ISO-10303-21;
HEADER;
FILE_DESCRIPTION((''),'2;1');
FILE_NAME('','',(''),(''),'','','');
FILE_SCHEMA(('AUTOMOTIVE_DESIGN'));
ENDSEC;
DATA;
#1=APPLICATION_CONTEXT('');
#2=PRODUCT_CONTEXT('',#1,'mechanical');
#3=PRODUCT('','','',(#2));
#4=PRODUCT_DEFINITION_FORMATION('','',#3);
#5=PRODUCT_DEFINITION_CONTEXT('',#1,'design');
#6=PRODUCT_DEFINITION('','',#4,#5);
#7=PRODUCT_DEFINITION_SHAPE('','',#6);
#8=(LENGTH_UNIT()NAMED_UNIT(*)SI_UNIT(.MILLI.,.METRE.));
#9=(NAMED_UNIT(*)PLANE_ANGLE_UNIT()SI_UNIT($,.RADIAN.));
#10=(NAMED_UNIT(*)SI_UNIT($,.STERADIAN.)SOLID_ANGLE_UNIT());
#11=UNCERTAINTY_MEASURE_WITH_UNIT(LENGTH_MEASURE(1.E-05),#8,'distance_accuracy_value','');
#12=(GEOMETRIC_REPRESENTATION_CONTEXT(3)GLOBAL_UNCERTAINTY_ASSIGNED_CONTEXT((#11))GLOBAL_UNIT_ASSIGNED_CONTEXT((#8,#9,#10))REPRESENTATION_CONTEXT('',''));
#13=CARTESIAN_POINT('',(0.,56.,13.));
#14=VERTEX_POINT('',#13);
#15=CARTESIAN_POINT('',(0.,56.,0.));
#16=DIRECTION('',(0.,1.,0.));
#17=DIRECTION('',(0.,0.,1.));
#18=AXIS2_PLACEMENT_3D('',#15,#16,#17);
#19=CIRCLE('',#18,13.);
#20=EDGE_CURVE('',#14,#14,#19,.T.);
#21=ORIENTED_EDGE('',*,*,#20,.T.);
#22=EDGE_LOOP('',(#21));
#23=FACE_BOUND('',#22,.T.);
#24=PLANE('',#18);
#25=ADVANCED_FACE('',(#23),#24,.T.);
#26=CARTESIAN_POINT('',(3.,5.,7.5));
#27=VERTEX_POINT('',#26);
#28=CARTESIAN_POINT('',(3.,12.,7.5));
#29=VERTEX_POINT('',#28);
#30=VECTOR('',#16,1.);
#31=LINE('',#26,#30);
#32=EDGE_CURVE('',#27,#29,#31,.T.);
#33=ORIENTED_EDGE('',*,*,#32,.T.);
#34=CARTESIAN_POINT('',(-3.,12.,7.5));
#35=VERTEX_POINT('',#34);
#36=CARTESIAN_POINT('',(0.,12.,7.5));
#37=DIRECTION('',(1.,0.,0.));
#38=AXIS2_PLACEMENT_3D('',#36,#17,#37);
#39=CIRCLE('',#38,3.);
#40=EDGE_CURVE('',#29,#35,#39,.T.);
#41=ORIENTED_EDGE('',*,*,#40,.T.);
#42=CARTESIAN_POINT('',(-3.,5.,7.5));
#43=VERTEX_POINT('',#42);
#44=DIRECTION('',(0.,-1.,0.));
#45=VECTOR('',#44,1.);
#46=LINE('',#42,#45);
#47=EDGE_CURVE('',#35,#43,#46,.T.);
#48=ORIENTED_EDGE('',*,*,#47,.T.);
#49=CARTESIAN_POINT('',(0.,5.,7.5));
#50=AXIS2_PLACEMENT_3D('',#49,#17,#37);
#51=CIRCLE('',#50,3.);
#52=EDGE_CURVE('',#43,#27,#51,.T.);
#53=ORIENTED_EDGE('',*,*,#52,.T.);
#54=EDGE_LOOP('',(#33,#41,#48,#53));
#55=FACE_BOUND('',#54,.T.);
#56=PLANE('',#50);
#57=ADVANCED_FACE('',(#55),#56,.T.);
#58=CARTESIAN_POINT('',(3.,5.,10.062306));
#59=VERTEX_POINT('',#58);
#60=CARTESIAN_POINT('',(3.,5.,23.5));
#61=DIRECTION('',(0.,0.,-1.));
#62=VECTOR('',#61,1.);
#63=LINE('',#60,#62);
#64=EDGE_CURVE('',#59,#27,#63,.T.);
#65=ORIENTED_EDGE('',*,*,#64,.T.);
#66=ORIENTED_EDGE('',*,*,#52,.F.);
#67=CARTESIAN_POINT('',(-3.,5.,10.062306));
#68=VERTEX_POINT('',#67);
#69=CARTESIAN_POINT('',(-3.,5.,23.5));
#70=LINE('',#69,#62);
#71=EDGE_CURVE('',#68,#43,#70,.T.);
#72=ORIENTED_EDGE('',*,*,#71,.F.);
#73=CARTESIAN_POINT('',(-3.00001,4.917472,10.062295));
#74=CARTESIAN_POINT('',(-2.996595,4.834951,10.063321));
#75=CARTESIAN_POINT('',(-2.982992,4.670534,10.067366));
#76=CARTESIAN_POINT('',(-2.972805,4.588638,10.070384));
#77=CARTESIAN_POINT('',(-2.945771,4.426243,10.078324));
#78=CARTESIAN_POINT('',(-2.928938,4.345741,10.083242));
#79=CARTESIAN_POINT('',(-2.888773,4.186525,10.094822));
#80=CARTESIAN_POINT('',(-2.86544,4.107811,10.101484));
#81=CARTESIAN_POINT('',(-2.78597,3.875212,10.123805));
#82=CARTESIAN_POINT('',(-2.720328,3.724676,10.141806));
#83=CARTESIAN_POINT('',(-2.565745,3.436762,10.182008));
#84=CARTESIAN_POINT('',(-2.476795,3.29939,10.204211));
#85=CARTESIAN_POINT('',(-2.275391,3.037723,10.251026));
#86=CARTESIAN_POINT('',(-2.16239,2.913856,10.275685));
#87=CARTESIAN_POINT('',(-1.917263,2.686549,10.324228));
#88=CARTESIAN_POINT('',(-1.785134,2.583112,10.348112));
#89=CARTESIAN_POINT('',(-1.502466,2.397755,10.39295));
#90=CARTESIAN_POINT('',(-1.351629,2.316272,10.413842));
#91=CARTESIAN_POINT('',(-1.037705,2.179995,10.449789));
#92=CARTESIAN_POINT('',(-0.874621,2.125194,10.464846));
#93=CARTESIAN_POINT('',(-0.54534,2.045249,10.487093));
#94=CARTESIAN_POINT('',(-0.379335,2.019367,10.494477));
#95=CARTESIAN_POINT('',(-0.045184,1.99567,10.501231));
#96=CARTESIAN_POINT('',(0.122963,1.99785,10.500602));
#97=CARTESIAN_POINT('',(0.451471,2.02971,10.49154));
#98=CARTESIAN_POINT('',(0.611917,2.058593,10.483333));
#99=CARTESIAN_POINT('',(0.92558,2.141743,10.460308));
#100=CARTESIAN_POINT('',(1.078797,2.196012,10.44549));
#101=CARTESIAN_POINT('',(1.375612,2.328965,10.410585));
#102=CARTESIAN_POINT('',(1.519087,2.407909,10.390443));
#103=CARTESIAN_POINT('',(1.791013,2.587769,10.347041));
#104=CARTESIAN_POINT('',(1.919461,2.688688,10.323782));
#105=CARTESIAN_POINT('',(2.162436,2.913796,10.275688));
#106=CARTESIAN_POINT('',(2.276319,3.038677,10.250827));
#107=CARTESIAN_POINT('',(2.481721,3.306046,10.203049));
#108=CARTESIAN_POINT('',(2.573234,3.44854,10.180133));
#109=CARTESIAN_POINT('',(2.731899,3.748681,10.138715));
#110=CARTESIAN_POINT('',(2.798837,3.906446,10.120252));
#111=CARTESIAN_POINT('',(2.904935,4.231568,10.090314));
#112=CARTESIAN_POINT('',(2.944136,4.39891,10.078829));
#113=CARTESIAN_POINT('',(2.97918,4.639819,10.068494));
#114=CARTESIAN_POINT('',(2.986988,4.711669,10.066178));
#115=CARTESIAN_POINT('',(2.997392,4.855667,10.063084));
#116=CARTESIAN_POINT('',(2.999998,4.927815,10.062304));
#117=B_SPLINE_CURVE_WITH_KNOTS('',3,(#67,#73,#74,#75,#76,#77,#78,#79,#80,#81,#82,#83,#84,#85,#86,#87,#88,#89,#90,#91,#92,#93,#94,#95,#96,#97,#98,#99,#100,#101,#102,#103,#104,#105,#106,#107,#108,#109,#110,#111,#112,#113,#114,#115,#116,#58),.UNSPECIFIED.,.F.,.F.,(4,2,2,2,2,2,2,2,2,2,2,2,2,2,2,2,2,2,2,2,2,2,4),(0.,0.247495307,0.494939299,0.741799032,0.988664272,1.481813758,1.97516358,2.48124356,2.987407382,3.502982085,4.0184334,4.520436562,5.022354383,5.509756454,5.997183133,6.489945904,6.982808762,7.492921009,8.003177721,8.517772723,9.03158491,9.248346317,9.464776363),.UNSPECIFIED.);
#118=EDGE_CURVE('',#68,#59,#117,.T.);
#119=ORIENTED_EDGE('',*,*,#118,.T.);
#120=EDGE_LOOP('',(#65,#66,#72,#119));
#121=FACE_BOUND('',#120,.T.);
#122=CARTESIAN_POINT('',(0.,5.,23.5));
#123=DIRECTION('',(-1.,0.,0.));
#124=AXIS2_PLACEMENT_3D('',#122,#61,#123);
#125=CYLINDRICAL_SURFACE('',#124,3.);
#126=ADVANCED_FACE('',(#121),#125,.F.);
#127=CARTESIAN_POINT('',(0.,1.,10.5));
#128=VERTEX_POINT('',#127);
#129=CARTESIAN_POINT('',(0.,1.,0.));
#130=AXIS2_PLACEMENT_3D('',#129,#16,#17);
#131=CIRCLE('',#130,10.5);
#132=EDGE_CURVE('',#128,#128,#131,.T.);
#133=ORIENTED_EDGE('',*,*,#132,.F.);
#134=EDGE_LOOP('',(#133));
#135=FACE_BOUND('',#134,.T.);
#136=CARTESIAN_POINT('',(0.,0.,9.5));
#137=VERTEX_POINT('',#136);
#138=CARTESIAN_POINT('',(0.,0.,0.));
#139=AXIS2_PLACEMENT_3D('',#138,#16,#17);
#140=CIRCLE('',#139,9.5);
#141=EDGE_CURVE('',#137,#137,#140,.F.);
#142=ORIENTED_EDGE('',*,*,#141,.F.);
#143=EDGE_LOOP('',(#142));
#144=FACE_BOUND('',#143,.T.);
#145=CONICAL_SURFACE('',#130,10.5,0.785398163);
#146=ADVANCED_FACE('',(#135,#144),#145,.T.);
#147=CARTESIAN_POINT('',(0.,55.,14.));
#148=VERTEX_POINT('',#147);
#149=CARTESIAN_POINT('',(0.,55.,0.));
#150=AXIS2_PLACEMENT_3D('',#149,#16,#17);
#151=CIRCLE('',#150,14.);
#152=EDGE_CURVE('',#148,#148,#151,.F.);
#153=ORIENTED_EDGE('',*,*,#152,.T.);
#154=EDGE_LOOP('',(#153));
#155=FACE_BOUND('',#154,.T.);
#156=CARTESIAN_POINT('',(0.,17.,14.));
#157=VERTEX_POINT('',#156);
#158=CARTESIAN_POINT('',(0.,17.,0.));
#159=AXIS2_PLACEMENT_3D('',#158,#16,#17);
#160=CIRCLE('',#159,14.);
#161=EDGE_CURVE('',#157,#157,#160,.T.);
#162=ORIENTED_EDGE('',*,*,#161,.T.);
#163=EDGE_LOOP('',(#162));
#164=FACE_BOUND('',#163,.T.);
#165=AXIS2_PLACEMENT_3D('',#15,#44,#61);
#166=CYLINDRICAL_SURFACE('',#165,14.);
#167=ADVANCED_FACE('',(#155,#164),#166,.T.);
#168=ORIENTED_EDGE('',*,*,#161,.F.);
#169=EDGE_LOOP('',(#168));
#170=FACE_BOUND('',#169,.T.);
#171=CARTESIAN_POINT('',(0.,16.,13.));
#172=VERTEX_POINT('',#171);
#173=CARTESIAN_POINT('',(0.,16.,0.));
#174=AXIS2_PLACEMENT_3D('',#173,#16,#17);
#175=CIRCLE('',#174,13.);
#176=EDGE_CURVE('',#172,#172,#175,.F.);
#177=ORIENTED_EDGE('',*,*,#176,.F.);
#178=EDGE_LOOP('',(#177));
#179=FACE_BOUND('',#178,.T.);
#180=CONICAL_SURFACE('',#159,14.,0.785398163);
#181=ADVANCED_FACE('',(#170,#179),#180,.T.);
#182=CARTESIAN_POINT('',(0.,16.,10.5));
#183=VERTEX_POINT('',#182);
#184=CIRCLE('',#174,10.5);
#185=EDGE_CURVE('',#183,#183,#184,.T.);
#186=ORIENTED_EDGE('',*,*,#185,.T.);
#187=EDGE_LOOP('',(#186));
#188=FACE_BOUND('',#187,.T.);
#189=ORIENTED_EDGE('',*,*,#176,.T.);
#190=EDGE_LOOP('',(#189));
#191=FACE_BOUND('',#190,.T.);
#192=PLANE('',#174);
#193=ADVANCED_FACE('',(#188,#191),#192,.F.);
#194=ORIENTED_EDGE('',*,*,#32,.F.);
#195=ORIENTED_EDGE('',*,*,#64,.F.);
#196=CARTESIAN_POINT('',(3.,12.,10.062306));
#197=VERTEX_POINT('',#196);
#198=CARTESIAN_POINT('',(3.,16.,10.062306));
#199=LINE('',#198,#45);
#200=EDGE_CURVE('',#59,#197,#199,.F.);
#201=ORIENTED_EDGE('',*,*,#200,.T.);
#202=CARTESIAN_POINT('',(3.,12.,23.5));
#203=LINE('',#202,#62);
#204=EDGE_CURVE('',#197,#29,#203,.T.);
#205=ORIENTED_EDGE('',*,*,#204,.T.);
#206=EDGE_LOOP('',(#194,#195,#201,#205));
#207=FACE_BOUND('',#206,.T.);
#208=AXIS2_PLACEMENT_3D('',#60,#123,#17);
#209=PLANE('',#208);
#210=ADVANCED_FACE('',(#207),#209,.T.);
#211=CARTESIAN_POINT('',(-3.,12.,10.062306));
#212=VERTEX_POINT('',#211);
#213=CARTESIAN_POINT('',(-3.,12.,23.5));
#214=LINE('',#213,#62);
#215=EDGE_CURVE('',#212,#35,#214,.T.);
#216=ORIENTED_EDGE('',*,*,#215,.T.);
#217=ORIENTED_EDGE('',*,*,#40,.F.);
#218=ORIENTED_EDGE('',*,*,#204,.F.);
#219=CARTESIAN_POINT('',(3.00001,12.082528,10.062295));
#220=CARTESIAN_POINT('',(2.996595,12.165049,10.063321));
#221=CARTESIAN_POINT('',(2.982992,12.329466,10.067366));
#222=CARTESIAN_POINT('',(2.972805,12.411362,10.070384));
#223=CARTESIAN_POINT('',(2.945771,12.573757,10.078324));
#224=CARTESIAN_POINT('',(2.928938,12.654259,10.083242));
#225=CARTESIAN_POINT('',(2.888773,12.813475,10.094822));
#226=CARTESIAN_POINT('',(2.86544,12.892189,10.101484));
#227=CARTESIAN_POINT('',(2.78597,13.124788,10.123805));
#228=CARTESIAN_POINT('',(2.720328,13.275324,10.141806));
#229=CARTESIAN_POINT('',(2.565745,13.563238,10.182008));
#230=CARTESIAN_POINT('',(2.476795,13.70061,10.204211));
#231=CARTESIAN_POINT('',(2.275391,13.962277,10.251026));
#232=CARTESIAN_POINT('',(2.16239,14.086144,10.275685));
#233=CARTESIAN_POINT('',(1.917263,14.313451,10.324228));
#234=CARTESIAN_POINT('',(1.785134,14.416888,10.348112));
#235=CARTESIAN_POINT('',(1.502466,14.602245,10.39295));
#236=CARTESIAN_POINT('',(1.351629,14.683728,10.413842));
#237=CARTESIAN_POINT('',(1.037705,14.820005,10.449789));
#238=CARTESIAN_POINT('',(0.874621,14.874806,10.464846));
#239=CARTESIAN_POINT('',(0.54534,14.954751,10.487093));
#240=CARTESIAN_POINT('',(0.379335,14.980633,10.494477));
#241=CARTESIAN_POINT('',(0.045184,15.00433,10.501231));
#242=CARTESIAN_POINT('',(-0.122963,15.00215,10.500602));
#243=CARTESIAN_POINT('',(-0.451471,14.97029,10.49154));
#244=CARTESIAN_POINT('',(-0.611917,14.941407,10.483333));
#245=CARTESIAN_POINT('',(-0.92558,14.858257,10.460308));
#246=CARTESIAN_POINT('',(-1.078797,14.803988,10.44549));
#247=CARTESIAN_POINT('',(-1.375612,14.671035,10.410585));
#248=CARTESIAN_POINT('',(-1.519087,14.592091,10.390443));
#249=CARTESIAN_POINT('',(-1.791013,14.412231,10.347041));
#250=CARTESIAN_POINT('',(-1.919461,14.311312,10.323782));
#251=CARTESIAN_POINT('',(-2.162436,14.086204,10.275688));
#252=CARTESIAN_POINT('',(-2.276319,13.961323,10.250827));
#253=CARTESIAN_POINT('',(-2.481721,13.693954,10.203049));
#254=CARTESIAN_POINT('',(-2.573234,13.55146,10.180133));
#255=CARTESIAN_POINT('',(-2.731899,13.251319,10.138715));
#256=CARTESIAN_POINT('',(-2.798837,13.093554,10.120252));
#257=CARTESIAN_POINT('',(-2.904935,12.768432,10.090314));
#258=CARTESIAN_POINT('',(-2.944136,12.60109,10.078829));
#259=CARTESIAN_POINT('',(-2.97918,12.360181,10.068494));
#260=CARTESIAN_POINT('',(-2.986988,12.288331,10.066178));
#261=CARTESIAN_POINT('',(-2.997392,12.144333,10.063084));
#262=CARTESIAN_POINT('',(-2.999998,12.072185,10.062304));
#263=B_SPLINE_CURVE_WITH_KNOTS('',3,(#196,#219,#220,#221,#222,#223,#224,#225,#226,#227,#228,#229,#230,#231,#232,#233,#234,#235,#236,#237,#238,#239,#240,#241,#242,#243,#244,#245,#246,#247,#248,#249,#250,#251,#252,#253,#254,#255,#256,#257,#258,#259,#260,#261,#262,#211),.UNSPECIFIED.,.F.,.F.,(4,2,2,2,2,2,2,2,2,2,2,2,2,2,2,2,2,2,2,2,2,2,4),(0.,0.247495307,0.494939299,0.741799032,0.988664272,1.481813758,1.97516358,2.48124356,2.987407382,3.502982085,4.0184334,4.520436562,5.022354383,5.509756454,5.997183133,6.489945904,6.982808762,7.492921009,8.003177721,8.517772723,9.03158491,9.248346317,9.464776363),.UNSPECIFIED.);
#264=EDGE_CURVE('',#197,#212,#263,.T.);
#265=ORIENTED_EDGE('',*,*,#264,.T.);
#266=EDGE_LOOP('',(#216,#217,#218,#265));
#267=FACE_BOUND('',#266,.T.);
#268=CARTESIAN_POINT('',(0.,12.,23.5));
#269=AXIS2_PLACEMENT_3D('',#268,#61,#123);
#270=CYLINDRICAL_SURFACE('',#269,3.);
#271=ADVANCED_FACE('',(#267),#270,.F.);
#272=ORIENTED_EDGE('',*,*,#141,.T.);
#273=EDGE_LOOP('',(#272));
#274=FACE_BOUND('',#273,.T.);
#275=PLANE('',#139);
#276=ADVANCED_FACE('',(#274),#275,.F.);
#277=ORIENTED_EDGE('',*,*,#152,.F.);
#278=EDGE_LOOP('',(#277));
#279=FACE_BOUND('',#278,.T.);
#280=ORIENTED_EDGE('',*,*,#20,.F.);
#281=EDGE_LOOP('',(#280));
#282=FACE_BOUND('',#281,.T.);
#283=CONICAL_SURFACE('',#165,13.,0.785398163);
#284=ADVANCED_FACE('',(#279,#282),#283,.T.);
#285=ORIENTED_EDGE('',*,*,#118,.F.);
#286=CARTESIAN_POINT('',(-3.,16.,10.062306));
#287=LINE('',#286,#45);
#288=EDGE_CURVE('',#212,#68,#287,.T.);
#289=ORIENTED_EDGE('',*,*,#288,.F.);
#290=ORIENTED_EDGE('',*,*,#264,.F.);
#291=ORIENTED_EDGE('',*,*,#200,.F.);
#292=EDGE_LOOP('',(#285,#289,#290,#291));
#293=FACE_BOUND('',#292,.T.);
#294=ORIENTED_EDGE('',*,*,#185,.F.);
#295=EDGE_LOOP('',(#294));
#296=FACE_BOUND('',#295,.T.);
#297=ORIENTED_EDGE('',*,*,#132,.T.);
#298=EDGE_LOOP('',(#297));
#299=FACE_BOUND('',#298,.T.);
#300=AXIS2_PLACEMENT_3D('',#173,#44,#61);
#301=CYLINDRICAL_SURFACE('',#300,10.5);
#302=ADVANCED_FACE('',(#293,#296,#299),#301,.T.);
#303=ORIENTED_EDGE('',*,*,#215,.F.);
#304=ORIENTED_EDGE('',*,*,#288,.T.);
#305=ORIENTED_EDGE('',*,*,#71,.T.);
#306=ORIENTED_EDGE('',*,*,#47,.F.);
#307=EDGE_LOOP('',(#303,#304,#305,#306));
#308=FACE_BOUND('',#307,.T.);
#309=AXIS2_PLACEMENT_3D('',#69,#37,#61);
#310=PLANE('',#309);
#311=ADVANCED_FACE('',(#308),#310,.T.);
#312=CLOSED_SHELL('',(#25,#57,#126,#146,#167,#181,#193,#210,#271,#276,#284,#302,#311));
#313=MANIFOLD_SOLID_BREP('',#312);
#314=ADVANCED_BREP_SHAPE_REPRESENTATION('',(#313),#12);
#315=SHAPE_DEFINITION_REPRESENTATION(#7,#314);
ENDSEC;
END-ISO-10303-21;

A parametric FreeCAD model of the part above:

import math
import FreeCAD as App
import Part
import Sketcher

V = App.Vector
Q = App.Units.Quantity


def edges_at(feature, points):
    """Names of the edges that pass closest to the given points."""
    edges = feature.Shape.Edges
    near = lambda p: min(range(len(edges)), key=lambda i: edges[i].distToShape(Part.Vertex(*p))[0])
    return sorted({f"Edge{near(p) + 1}" for p in points})

doc = App.newDocument("Part")
body = doc.addObject("PartDesign::Body", "Body")

# Sketch on XZ plane
sketch1 = doc.addObject("Sketcher::SketchObject", "Sketch")
body.addObject(sketch1)
sketch1.AttachmentSupport = (doc.XZ_Plane, [""])
sketch1.MapMode = "FlatFace"
sketch1.addGeometry(Part.Circle(V(0, 0, 0), V(0, 0, 1), 14), False)
sketch1.addConstraint(Sketcher.Constraint("Coincident", 0, 3, -1, 1))
sketch1.addConstraint(Sketcher.Constraint("Diameter", 0, Q("28 mm")))
pad1 = doc.addObject("PartDesign::Pad", "Pad")
body.addObject(pad1)
pad1.Profile = sketch1
pad1.Length = 56
pad1.Reversed = True

# Sketch on XZ plane
sketch2 = doc.addObject("Sketcher::SketchObject", "Sketch001")
body.addObject(sketch2)
sketch2.AttachmentSupport = (doc.XZ_Plane, [""])
sketch2.MapMode = "FlatFace"
sketch2.addGeometry(Part.Circle(V(0, 0, 0), V(0, 0, 1), 14), False)
sketch2.addGeometry(Part.Circle(V(0, 0, 0), V(0, 0, 1), 10), False)
sketch2.addConstraint(Sketcher.Constraint("Coincident", 0, 3, -1, 1))
sketch2.addConstraint(Sketcher.Constraint("Coincident", 1, 3, -1, 1))
sketch2.addConstraint(Sketcher.Constraint("Diameter", 0, Q("28 mm")))
sketch2.addConstraint(Sketcher.Constraint("Diameter", 1, Q("21 mm")))
pocket1 = doc.addObject("PartDesign::Pocket", "Pocket")
body.addObject(pocket1)
pocket1.Profile = sketch2
pocket1.Length = 16
doc.recompute()

chamfer = doc.addObject("PartDesign::Chamfer", "Chamfer")
body.addObject(chamfer)
chamfer.Base = (pocket1, edges_at(pocket1, [(0, 56, -14), (0, 16, -14), (0, 0, -10.5)]))
chamfer.Size = 1

# Sketch on XY plane
sketch3 = doc.addObject("Sketcher::SketchObject", "Sketch002")
body.addObject(sketch3)
sketch3.AttachmentSupport = (doc.XY_Plane, [""])
sketch3.MapMode = "FlatFace"
sketch3.AttachmentOffset = App.Placement(V(0, 0, 7.5), App.Rotation())
sketch3.addGeometry(Part.LineSegment(V(-3, 12, 0), V(-3, 5, 0)), False)
sketch3.addGeometry(Part.ArcOfCircle(Part.Circle(V(0, 5, 0), V(0, 0, 1), 3), math.radians(180), math.radians(360)), False)
sketch3.addGeometry(Part.LineSegment(V(3, 5, 0), V(3, 12, 0)), False)
sketch3.addGeometry(Part.ArcOfCircle(Part.Circle(V(0, 12, 0), V(0, 0, 1), 3), math.radians(0), math.radians(180)), False)
sketch3.addConstraint(Sketcher.Constraint("Tangent", 0, 2, 1, 1))
sketch3.addConstraint(Sketcher.Constraint("Tangent", 1, 2, 2, 1))
sketch3.addConstraint(Sketcher.Constraint("Tangent", 2, 2, 3, 1))
sketch3.addConstraint(Sketcher.Constraint("Tangent", 3, 2, 0, 1))
sketch3.addConstraint(Sketcher.Constraint("Vertical", 0))
sketch3.addConstraint(Sketcher.Constraint("Vertical", 2))
sketch3.addConstraint(Sketcher.Constraint("PointOnObject", 1, 3, -2))
sketch3.addConstraint(Sketcher.Constraint("Radius", 1, Q("3 mm")))
sketch3.addConstraint(Sketcher.Constraint("DistanceY", 0, 2, 0, 1, Q("7 mm")))
sketch3.addConstraint(Sketcher.Constraint("DistanceY", -1, 1, 1, 3, Q("5 mm")))
pocket2 = doc.addObject("PartDesign::Pocket", "Pocket001")
body.addObject(pocket2)
pocket2.Profile = sketch3
pocket2.Length = 16
pocket2.Reversed = True

doc.recompute()
